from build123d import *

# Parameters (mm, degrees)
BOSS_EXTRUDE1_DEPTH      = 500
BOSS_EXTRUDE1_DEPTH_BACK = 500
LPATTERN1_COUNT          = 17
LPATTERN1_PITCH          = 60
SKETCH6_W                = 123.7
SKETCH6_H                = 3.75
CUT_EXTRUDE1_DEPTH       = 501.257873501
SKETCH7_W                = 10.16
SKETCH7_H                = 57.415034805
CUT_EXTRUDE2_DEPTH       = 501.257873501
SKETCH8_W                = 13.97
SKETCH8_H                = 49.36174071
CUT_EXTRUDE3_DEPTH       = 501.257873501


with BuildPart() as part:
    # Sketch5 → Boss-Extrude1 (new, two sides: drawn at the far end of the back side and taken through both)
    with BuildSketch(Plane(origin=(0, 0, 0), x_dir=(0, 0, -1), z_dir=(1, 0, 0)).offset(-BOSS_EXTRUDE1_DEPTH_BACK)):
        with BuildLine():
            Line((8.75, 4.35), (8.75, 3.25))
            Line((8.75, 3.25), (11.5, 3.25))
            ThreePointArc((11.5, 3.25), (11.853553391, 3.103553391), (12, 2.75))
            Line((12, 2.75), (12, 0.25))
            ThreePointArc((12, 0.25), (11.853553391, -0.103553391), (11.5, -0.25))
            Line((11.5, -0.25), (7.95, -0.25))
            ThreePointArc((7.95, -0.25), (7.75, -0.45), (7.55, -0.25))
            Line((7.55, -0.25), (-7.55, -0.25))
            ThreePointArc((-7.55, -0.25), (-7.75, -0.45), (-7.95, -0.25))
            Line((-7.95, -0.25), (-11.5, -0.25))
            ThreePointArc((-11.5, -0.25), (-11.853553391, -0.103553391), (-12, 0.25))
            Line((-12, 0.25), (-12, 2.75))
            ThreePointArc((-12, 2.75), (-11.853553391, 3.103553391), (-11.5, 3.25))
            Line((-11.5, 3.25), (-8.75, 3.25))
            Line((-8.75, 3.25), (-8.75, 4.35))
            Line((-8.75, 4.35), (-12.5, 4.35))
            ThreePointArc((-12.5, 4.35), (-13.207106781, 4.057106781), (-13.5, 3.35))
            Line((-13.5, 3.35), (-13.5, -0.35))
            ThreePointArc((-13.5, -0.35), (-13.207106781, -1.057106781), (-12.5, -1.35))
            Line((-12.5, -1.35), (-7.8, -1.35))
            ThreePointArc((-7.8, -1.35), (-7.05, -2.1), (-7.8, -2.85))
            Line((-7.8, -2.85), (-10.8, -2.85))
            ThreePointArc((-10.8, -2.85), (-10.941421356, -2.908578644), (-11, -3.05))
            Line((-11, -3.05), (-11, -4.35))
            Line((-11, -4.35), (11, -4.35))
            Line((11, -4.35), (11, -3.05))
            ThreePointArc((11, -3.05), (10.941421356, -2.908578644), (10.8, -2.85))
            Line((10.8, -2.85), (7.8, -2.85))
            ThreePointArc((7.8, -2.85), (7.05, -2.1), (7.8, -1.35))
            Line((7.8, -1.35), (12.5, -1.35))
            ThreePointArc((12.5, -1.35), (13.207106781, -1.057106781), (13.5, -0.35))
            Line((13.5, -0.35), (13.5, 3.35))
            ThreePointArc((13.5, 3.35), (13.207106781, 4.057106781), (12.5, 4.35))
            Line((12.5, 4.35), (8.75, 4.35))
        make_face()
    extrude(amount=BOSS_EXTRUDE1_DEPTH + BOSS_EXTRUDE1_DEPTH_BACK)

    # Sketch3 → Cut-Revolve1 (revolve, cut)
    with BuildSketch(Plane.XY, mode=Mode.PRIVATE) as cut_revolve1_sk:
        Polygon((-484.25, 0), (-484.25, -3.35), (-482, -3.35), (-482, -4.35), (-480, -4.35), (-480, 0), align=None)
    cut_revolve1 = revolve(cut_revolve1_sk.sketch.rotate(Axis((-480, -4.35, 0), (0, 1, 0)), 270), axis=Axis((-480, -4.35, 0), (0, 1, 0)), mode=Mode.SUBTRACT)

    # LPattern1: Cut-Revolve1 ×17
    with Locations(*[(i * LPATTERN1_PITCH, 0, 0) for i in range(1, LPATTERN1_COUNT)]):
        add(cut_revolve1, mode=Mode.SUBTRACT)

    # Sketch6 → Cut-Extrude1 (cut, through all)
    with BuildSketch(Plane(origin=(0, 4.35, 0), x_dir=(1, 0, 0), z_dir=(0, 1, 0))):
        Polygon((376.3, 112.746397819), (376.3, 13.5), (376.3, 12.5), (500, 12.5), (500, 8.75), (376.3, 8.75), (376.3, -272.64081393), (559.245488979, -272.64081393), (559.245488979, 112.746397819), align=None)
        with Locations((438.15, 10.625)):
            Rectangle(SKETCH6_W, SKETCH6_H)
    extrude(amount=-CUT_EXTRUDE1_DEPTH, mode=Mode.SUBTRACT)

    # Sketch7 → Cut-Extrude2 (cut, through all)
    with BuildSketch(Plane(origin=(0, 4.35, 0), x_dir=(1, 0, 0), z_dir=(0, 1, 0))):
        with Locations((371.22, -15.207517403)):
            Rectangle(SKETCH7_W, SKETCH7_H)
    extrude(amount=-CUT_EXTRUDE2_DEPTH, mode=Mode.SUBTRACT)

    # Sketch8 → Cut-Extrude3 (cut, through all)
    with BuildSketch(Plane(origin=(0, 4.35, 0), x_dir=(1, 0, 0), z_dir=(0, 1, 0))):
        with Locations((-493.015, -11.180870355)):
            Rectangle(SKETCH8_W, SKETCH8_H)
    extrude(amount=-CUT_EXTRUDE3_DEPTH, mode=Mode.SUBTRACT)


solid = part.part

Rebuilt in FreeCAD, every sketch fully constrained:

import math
import FreeCAD as App
import Part
import Sketcher

V = App.Vector
Q = App.Units.Quantity


def add_polygon(sketch, points):
    """Adds a closed chain of lines whose ends are joined by coincident constraints."""
    first, n = sketch.GeometryCount, len(points)
    for a, b in zip(points, points[1:] + points[:1]):
        sketch.addGeometry(Part.LineSegment(App.Vector(*a, 0), App.Vector(*b, 0)), False)
    for i in range(n):
        sketch.addConstraint(Sketcher.Constraint("Coincident", first + i, 2, first + (i + 1) % n, 1))

doc = App.newDocument("Part")
body = doc.addObject("PartDesign::Body", "Body")

sketch1 = body.newObject("Sketcher::SketchObject", "Sketch")
sketch1.AttachmentSupport = (doc.getObject("YZ_Plane"), [""])
sketch1.MapMode = "FlatFace"
sketch1.addGeometry(Part.LineSegment(V(4.35, -8.75, 0), V(3.25, -8.75, 0)), False)
sketch1.addGeometry(Part.LineSegment(V(3.25, -8.75, 0), V(3.25, -11.5, 0)), False)
sketch1.addGeometry(Part.ArcOfCircle(Part.Circle(V(2.75, -11.5, 0), V(0, 0, 1), 0.5), math.radians(-90), math.radians(0)), False)
sketch1.addGeometry(Part.LineSegment(V(2.75, -12, 0), V(0.25, -12, 0)), False)
sketch1.addGeometry(Part.ArcOfCircle(Part.Circle(V(0.25, -11.5, 0), V(0, 0, 1), 0.5), math.radians(180), math.radians(270)), False)
sketch1.addGeometry(Part.LineSegment(V(-0.25, -11.5, 0), V(-0.25, -7.95, 0)), False)
sketch1.addGeometry(Part.ArcOfCircle(Part.Circle(V(-0.25, -7.75, 0), V(0, 0, 1), 0.2), math.radians(90), math.radians(270)), False)
sketch1.addGeometry(Part.LineSegment(V(-0.25, -7.55, 0), V(-0.25, 7.55, 0)), False)
sketch1.addGeometry(Part.ArcOfCircle(Part.Circle(V(-0.25, 7.75, 0), V(0, 0, 1), 0.2), math.radians(90), math.radians(270)), False)
sketch1.addGeometry(Part.LineSegment(V(-0.25, 7.95, 0), V(-0.25, 11.5, 0)), False)
sketch1.addGeometry(Part.ArcOfCircle(Part.Circle(V(0.25, 11.5, 0), V(0, 0, 1), 0.5), math.radians(90), math.radians(180)), False)
sketch1.addGeometry(Part.LineSegment(V(0.25, 12, 0), V(2.75, 12, 0)), False)
sketch1.addGeometry(Part.ArcOfCircle(Part.Circle(V(2.75, 11.5, 0), V(0, 0, 1), 0.5), math.radians(0), math.radians(90)), False)
sketch1.addGeometry(Part.LineSegment(V(3.25, 11.5, 0), V(3.25, 8.75, 0)), False)
sketch1.addGeometry(Part.LineSegment(V(3.25, 8.75, 0), V(4.35, 8.75, 0)), False)
sketch1.addGeometry(Part.LineSegment(V(4.35, 8.75, 0), V(4.35, 12.5, 0)), False)
sketch1.addGeometry(Part.ArcOfCircle(Part.Circle(V(3.35, 12.5, 0), V(0, 0, 1), 1), math.radians(0), math.radians(90)), False)
sketch1.addGeometry(Part.LineSegment(V(3.35, 13.5, 0), V(-0.35, 13.5, 0)), False)
sketch1.addGeometry(Part.ArcOfCircle(Part.Circle(V(-0.35, 12.5, 0), V(0, 0, 1), 1), math.radians(90), math.radians(180)), False)
sketch1.addGeometry(Part.LineSegment(V(-1.35, 12.5, 0), V(-1.35, 7.8, 0)), False)
sketch1.addGeometry(Part.ArcOfCircle(Part.Circle(V(-2.1, 7.8, 0), V(0, 0, 1), 0.75), math.radians(180), math.radians(360)), False)
sketch1.addGeometry(Part.LineSegment(V(-2.85, 7.8, 0), V(-2.85, 10.8, 0)), False)
sketch1.addGeometry(Part.ArcOfCircle(Part.Circle(V(-3.05, 10.8, 0), V(0, 0, 1), 0.2), math.radians(0), math.radians(90)), False)
sketch1.addGeometry(Part.LineSegment(V(-3.05, 11, 0), V(-4.35, 11, 0)), False)
sketch1.addGeometry(Part.LineSegment(V(-4.35, 11, 0), V(-4.35, -11, 0)), False)
sketch1.addGeometry(Part.LineSegment(V(-4.35, -11, 0), V(-3.05, -11, 0)), False)
sketch1.addGeometry(Part.ArcOfCircle(Part.Circle(V(-3.05, -10.8, 0), V(0, 0, 1), 0.2), math.radians(-90), math.radians(0)), False)
sketch1.addGeometry(Part.LineSegment(V(-2.85, -10.8, 0), V(-2.85, -7.8, 0)), False)
sketch1.addGeometry(Part.ArcOfCircle(Part.Circle(V(-2.1, -7.8, 0), V(0, 0, 1), 0.75), math.radians(0), math.radians(180)), False)
sketch1.addGeometry(Part.LineSegment(V(-1.35, -7.8, 0), V(-1.35, -12.5, 0)), False)
sketch1.addGeometry(Part.ArcOfCircle(Part.Circle(V(-0.35, -12.5, 0), V(0, 0, 1), 1), math.radians(-180), math.radians(-90)), False)
sketch1.addGeometry(Part.LineSegment(V(-0.35, -13.5, 0), V(3.35, -13.5, 0)), False)
sketch1.addGeometry(Part.ArcOfCircle(Part.Circle(V(3.35, -12.5, 0), V(0, 0, 1), 1), math.radians(-90), math.radians(0)), False)
sketch1.addGeometry(Part.LineSegment(V(4.35, -12.5, 0), V(4.35, -8.75, 0)), False)
sketch1.addConstraint(Sketcher.Constraint("Coincident", 0, 2, 1, 1))
sketch1.addConstraint(Sketcher.Constraint("Tangent", 1, 2, 2, 2))
sketch1.addConstraint(Sketcher.Constraint("Tangent", 2, 1, 3, 1))
sketch1.addConstraint(Sketcher.Constraint("Tangent", 3, 2, 4, 2))
sketch1.addConstraint(Sketcher.Constraint("Tangent", 4, 1, 5, 1))
sketch1.addConstraint(Sketcher.Constraint("Coincident", 5, 2, 6, 2))
sketch1.addConstraint(Sketcher.Constraint("Coincident", 6, 1, 7, 1))
sketch1.addConstraint(Sketcher.Constraint("Coincident", 7, 2, 8, 2))
sketch1.addConstraint(Sketcher.Constraint("Coincident", 8, 1, 9, 1))
sketch1.addConstraint(Sketcher.Constraint("Tangent", 9, 2, 10, 2))
sketch1.addConstraint(Sketcher.Constraint("Tangent", 10, 1, 11, 1))
sketch1.addConstraint(Sketcher.Constraint("Tangent", 11, 2, 12, 2))
sketch1.addConstraint(Sketcher.Constraint("Tangent", 12, 1, 13, 1))
sketch1.addConstraint(Sketcher.Constraint("Coincident", 13, 2, 14, 1))
sketch1.addConstraint(Sketcher.Constraint("Coincident", 14, 2, 15, 1))
sketch1.addConstraint(Sketcher.Constraint("Tangent", 15, 2, 16, 1))
sketch1.addConstraint(Sketcher.Constraint("Tangent", 16, 2, 17, 1))
sketch1.addConstraint(Sketcher.Constraint("Tangent", 17, 2, 18, 1))
sketch1.addConstraint(Sketcher.Constraint("Tangent", 18, 2, 19, 1))
sketch1.addConstraint(Sketcher.Constraint("Tangent", 19, 2, 20, 2))
sketch1.addConstraint(Sketcher.Constraint("Tangent", 20, 1, 21, 1))
sketch1.addConstraint(Sketcher.Constraint("Tangent", 21, 2, 22, 1))
sketch1.addConstraint(Sketcher.Constraint("Tangent", 22, 2, 23, 1))
sketch1.addConstraint(Sketcher.Constraint("Coincident", 23, 2, 24, 1))
sketch1.addConstraint(Sketcher.Constraint("Coincident", 24, 2, 25, 1))
sketch1.addConstraint(Sketcher.Constraint("Tangent", 25, 2, 26, 1))
sketch1.addConstraint(Sketcher.Constraint("Tangent", 26, 2, 27, 1))
sketch1.addConstraint(Sketcher.Constraint("Tangent", 27, 2, 28, 2))
sketch1.addConstraint(Sketcher.Constraint("Tangent", 28, 1, 29, 1))
sketch1.addConstraint(Sketcher.Constraint("Tangent", 29, 2, 30, 1))
sketch1.addConstraint(Sketcher.Constraint("Tangent", 30, 2, 31, 1))
sketch1.addConstraint(Sketcher.Constraint("Tangent", 31, 2, 32, 1))
sketch1.addConstraint(Sketcher.Constraint("Tangent", 32, 2, 33, 1))
sketch1.addConstraint(Sketcher.Constraint("Coincident", 33, 2, 0, 1))
sketch1.addConstraint(Sketcher.Constraint("Horizontal", 0))
sketch1.addConstraint(Sketcher.Constraint("Vertical", 1))
sketch1.addConstraint(Sketcher.Constraint("Horizontal", 3))
sketch1.addConstraint(Sketcher.Constraint("Vertical", 5))
sketch1.addConstraint(Sketcher.Constraint("Vertical", 7))
sketch1.addConstraint(Sketcher.Constraint("Vertical", 9))
sketch1.addConstraint(Sketcher.Constraint("Horizontal", 11))
sketch1.addConstraint(Sketcher.Constraint("Vertical", 13))
sketch1.addConstraint(Sketcher.Constraint("Horizontal", 14))
sketch1.addConstraint(Sketcher.Constraint("Vertical", 15))
sketch1.addConstraint(Sketcher.Constraint("Horizontal", 17))
sketch1.addConstraint(Sketcher.Constraint("Vertical", 19))
sketch1.addConstraint(Sketcher.Constraint("Vertical", 21))
sketch1.addConstraint(Sketcher.Constraint("Horizontal", 23))
sketch1.addConstraint(Sketcher.Constraint("Vertical", 24))
sketch1.addConstraint(Sketcher.Constraint("Horizontal", 25))
sketch1.addConstraint(Sketcher.Constraint("Vertical", 27))
sketch1.addConstraint(Sketcher.Constraint("Vertical", 29))
sketch1.addConstraint(Sketcher.Constraint("Horizontal", 31))
sketch1.addConstraint(Sketcher.Constraint("Vertical", 33))
sketch1.addConstraint(Sketcher.Constraint("Equal", 2, 4))
sketch1.addConstraint(Sketcher.Constraint("Equal", 6, 8))
sketch1.addConstraint(Sketcher.Constraint("Equal", 4, 10))
sketch1.addConstraint(Sketcher.Constraint("Equal", 10, 12))
sketch1.addConstraint(Sketcher.Constraint("Equal", 16, 18))
sketch1.addConstraint(Sketcher.Constraint("Equal", 8, 22))
sketch1.addConstraint(Sketcher.Constraint("Equal", 22, 26))
sketch1.addConstraint(Sketcher.Constraint("Equal", 20, 28))
sketch1.addConstraint(Sketcher.Constraint("Equal", 18, 30))
sketch1.addConstraint(Sketcher.Constraint("Equal", 30, 32))
sketch1.addConstraint(Sketcher.Constraint("Symmetric", 6, 3, 8, 3, -1))
sketch1.addConstraint(Sketcher.Constraint("Symmetric", 4, 3, 10, 3, -1))
sketch1.addConstraint(Sketcher.Constraint("Symmetric", 22, 3, 26, 3, -1))
sketch1.addConstraint(Sketcher.Constraint("Symmetric", 16, 3, 32, 3, -1))
sketch1.addConstraint(Sketcher.Constraint("Symmetric", 0, 2, 13, 2, -1))
sketch1.addConstraint(Sketcher.Constraint("Vertical", 8, 3, 4, 1))
sketch1.addConstraint(Sketcher.Constraint("Vertical", 5, 2, 6, 1))
sketch1.addConstraint(Sketcher.Constraint("Equal", 21, 27))
sketch1.addConstraint(Sketcher.Constraint("Radius", 16, Q("1 mm")))
sketch1.addConstraint(Sketcher.Constraint("Radius", 2, Q("0.5 mm")))
sketch1.addConstraint(Sketcher.Constraint("Radius", 6, Q("0.2 mm")))
sketch1.addConstraint(Sketcher.Constraint("DistanceY", 21, 1, 21, 2, Q("3 mm")))
sketch1.addConstraint(Sketcher.Constraint("DistanceY", 24, 2, 24, 1, Q("22 mm")))
sketch1.addConstraint(Sketcher.Constraint("Radius", 20, Q("0.75 mm")))
sketch1.addConstraint(Sketcher.Constraint("DistanceX", 0, 2, 0, 1, Q("1.1 mm")))
sketch1.addConstraint(Sketcher.Constraint("DistanceX", 3, 2, 3, 1, Q("2.5 mm")))
sketch1.addConstraint(Sketcher.Constraint("DistanceX", 17, 2, 17, 1, Q("3.7 mm")))
sketch1.addConstraint(Sketcher.Constraint("DistanceX", 23, 2, 23, 1, Q("1.3 mm")))
sketch1.addConstraint(Sketcher.Constraint("DistanceY", 7, 1, 7, 2, Q("15.1 mm")))
sketch1.addConstraint(Sketcher.Constraint("DistanceY", 19, 2, 19, 1, Q("4.7 mm")))
sketch1.addConstraint(Sketcher.Constraint("DistanceY", 2, 1, -1, 1, Q("12 mm")))
sketch1.addConstraint(Sketcher.Constraint("DistanceY", 0, 2, 6, 3, Q("1 mm")))
sketch1.addConstraint(Sketcher.Constraint("DistanceX", 20, 3, -1, 1, Q("2.1 mm")))
pad1 = body.newObject("PartDesign::Pad", "Pad")
pad1.Profile = sketch1
pad1.Type = "TwoLengths"
pad1.Length = 500
pad1.Length2 = 500

sketch2 = body.newObject("Sketcher::SketchObject", "Sketch001")
sketch2.AttachmentSupport = (doc.getObject("XY_Plane"), [""])
sketch2.MapMode = "FlatFace"
add_polygon(sketch2, [(-484.2, 0), (-484.2, -3.4), (-482, -3.4), (-482, -4.3), (-480, -4.3), (-480, 0)])
sketch2.addGeometry(Part.LineSegment(V(-480, -4.3, 0), V(-480, 0, 0)), True)
sketch2.addConstraint(Sketcher.Constraint("Vertical", 0))
sketch2.addConstraint(Sketcher.Constraint("Horizontal", 1))
sketch2.addConstraint(Sketcher.Constraint("Vertical", 2))
sketch2.addConstraint(Sketcher.Constraint("Horizontal", 3))
sketch2.addConstraint(Sketcher.Constraint("Vertical", 4))
sketch2.addConstraint(Sketcher.Constraint("Horizontal", 5))
sketch2.addConstraint(Sketcher.Constraint("Vertical", 6))
sketch2.addConstraint(Sketcher.Constraint("Coincident", 6, 1, 3, 2))
sketch2.addConstraint(Sketcher.Constraint("PointOnObject", 4, 2, -1))
sketch2.addConstraint(Sketcher.Constraint("PointOnObject", 6, 2, -1))
sketch2.addConstraint(Sketcher.Constraint("DistanceX", 3, 1, 3, 2, Q("2 mm")))
sketch2.addConstraint(Sketcher.Constraint("DistanceY", 2, 2, 2, 1, Q("1 mm")))
sketch2.addConstraint(Sketcher.Constraint("DistanceX", 1, 2, -1, 1, Q("482 mm")))
sketch2.addConstraint(Sketcher.Constraint("DistanceX", 1, 1, 1, 2, Q("2.25 mm")))
sketch2.addConstraint(Sketcher.Constraint("DistanceY", 0, 2, 0, 1, Q("3.35 mm")))
groove = body.newObject("PartDesign::Groove", "Groove")
groove.Profile = sketch2
groove.ReferenceAxis = (sketch2, ["Axis0"])
groove.Angle = 360
doc.recompute()

linearpattern = body.newObject("PartDesign::LinearPattern", "LinearPattern")
linearpattern.Originals = [groove]
linearpattern.Direction = (doc.getObject("X_Axis"), [""])
linearpattern.Mode = "offset"
linearpattern.Offset = 60
linearpattern.Occurrences = 17
body.Tip = linearpattern

sketch3 = body.newObject("Sketcher::SketchObject", "Sketch002")
sketch3.AttachmentSupport = (doc.getObject("XZ_Plane"), [""])
sketch3.MapMode = "FlatFace"
sketch3.AttachmentOffset = App.Placement(V(0, 0, -4.35), App.Rotation())
add_polygon(sketch3, [(376, -113), (376, 273), (559, 273), (559, -113)])
sketch3.addConstraint(Sketcher.Constraint("Vertical", 0))
sketch3.addConstraint(Sketcher.Constraint("Horizontal", 1))
sketch3.addConstraint(Sketcher.Constraint("Vertical", 2))
sketch3.addConstraint(Sketcher.Constraint("Horizontal", 3))
sketch3.addConstraint(Sketcher.Constraint("DistanceX", -1, 1, 0, 2, Q("376.3 mm")))
sketch3.addConstraint(Sketcher.Constraint("DistanceX", 1, 1, 1, 2, Q("182.945489 mm")))
sketch3.addConstraint(Sketcher.Constraint("DistanceY", 0, 1, 0, 2, Q("385.387212 mm")))
sketch3.addConstraint(Sketcher.Constraint("DistanceY", -1, 1, 0, 2, Q("272.640814 mm")))
pocket1 = body.newObject("PartDesign::Pocket", "Pocket")
pocket1.Profile = sketch3
pocket1.Type = "ThroughAll"
pocket1.Reversed = True

sketch4 = body.newObject("Sketcher::SketchObject", "Sketch003")
sketch4.AttachmentSupport = (doc.getObject("XZ_Plane"), [""])
sketch4.MapMode = "FlatFace"
sketch4.AttachmentOffset = App.Placement(V(0, 0, -4.35), App.Rotation())
add_polygon(sketch4, [(366, -13), (366, 44), (376, 44), (376, -13)])
sketch4.addConstraint(Sketcher.Constraint("Vertical", 0))
sketch4.addConstraint(Sketcher.Constraint("Horizontal", 1))
sketch4.addConstraint(Sketcher.Constraint("Vertical", 2))
sketch4.addConstraint(Sketcher.Constraint("Horizontal", 3))
sketch4.addConstraint(Sketcher.Constraint("DistanceX", 1, 1, 1, 2, Q("10.16 mm")))
sketch4.addConstraint(Sketcher.Constraint("DistanceX", -1, 1, 1, 2, Q("376.3 mm")))
sketch4.addConstraint(Sketcher.Constraint("DistanceY", 2, 2, -1, 1, Q("13.5 mm")))
sketch4.addConstraint(Sketcher.Constraint("DistanceY", 0, 1, 0, 2, Q("57.415035 mm")))
pocket2 = body.newObject("PartDesign::Pocket", "Pocket001")
pocket2.Profile = sketch4
pocket2.Type = "ThroughAll"
pocket2.Reversed = True

sketch5 = body.newObject("Sketcher::SketchObject", "Sketch004")
sketch5.AttachmentSupport = (doc.getObject("XZ_Plane"), [""])
sketch5.MapMode = "FlatFace"
sketch5.AttachmentOffset = App.Placement(V(0, 0, -4.35), App.Rotation())
add_polygon(sketch5, [(-500, -14), (-500, 36), (-486, 36), (-486, -14)])
sketch5.addConstraint(Sketcher.Constraint("Vertical", 0))
sketch5.addConstraint(Sketcher.Constraint("Horizontal", 1))
sketch5.addConstraint(Sketcher.Constraint("Vertical", 2))
sketch5.addConstraint(Sketcher.Constraint("Horizontal", 3))
sketch5.addConstraint(Sketcher.Constraint("DistanceX", 0, 2, -1, 1, Q("500 mm")))
sketch5.addConstraint(Sketcher.Constraint("DistanceX", 1, 1, 1, 2, Q("13.97 mm")))
sketch5.addConstraint(Sketcher.Constraint("DistanceY", 2, 2, -1, 1, Q("13.5 mm")))
sketch5.addConstraint(Sketcher.Constraint("DistanceY", 0, 1, 0, 2, Q("49.361741 mm")))
pocket3 = body.newObject("PartDesign::Pocket", "Pocket002")
pocket3.Profile = sketch5
pocket3.Type = "ThroughAll"
pocket3.Reversed = True

doc.recompute()
